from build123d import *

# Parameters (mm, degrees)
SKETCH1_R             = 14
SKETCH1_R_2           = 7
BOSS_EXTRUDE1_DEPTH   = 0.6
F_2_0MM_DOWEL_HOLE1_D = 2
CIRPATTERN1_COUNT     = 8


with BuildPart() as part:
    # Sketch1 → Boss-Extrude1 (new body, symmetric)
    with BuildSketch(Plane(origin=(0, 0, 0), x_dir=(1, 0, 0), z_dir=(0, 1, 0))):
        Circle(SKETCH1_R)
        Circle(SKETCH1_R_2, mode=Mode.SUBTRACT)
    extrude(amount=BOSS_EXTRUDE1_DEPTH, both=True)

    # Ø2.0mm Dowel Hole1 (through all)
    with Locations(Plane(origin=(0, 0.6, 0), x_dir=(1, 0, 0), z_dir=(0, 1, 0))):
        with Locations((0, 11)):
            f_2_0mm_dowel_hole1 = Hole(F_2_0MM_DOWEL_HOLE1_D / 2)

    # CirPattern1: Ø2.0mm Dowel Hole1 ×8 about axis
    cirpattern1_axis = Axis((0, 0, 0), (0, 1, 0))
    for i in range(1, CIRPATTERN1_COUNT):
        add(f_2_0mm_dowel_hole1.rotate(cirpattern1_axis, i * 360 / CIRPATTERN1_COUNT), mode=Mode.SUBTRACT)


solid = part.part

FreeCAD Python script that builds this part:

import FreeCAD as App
import Part
import Sketcher
Q = App.Units.Quantity

doc = App.newDocument("Part")
body = doc.addObject("PartDesign::Body", "Body")

# Sketch on XZ plane
sketch1 = doc.addObject("Sketcher::SketchObject", "Sketch")
body.addObject(sketch1)
sketch1.AttachmentSupport = (doc.XZ_Plane, [""])
sketch1.MapMode = "FlatFace"
sketch1.addGeometry([
    Part.Circle(App.Vector(0, 0, 0), App.Vector(0, 0, 1), 14),
    Part.Circle(App.Vector(0, 0, 0), App.Vector(0, 0, 1), 7),
], False)
sketch1.addConstraint([
    Sketcher.Constraint("Coincident", 0, 3, -1, 1),
    Sketcher.Constraint("Coincident", 1, 3, -1, 1),
    Sketcher.Constraint("Diameter", 0, Q("28 mm")),
    Sketcher.Constraint("Diameter", 1, Q("14 mm")),
])
pad1 = doc.addObject("PartDesign::Pad", "Pad")
body.addObject(pad1)
pad1.Profile = sketch1
pad1.Length = 1.2
pad1.Midplane = True

# Sketch on XZ plane
sketch2 = doc.addObject("Sketcher::SketchObject", "Sketch001")
body.addObject(sketch2)
sketch2.AttachmentSupport = (doc.XZ_Plane, [""])
sketch2.MapMode = "FlatFace"
sketch2.AttachmentOffset = App.Placement(App.Vector(0, 0, -0.6), App.Rotation())
sketch2.addGeometry(Part.Circle(App.Vector(0, -11, 0), App.Vector(0, 0, 1), 1), False)
sketch2.addConstraint([
    Sketcher.Constraint("PointOnObject", 0, 3, -2),
    Sketcher.Constraint("Diameter", 0, Q("2 mm")),
    Sketcher.Constraint("DistanceY", 0, 3, -1, 1, Q("11 mm")),
])
doc.recompute()
hole = doc.addObject("PartDesign::Hole", "Hole")
body.addObject(hole)
hole.Profile = sketch2
hole.ThreadType = "None"
hole.Diameter = 2
hole.DepthType = "ThroughAll"
hole.Reversed = True
doc.recompute()

polarpattern = doc.addObject("PartDesign::PolarPattern", "PolarPattern")
body.addObject(polarpattern)
polarpattern.Originals = [hole]
polarpattern.Axis = (doc.Y_Axis, [""])
polarpattern.Angle = 360
polarpattern.Occurrences = 8
body.Tip = polarpattern

doc.recompute()
